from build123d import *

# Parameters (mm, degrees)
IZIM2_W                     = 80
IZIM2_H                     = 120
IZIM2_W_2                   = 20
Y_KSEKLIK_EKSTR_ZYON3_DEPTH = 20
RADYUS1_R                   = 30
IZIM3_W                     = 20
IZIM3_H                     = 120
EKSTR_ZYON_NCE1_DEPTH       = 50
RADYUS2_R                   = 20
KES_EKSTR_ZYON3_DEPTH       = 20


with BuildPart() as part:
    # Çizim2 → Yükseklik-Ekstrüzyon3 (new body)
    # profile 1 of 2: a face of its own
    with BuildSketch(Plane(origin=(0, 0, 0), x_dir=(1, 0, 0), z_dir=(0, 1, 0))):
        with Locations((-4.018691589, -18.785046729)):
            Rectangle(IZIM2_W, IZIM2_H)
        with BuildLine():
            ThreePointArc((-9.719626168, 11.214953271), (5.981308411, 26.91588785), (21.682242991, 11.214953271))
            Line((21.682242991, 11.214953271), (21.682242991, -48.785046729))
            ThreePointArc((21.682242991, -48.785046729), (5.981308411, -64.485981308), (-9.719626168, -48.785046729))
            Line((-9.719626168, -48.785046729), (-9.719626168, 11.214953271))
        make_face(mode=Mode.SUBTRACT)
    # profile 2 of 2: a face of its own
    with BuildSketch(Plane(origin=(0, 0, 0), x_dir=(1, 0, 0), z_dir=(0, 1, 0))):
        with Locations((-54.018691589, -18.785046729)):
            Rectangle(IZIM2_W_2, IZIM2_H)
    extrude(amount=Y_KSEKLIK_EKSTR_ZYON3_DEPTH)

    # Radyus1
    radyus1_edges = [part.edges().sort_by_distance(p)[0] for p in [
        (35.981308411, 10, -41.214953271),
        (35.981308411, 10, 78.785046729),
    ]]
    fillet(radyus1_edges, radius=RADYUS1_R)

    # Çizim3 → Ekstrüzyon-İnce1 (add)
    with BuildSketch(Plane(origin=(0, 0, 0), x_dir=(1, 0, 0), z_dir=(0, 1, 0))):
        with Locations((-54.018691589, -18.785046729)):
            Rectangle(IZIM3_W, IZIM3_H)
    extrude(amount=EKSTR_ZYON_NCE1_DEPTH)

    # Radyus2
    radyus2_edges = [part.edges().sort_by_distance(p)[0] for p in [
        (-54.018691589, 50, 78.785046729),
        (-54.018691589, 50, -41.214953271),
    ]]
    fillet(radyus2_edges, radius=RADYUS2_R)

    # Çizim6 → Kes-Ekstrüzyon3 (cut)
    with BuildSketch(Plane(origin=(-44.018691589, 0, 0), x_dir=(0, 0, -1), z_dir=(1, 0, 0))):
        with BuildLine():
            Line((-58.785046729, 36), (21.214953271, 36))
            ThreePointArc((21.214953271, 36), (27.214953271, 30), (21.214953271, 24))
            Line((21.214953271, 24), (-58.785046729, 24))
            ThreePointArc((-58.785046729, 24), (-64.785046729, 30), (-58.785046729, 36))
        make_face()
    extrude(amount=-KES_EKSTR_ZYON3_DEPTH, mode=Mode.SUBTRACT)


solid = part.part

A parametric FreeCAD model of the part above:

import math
import FreeCAD as App
import Part
import Sketcher
from FreeCAD import Vector


def edges_at(feature, points):
    """Names of the edges that pass closest to the given points."""
    edges = feature.Shape.Edges
    near = lambda p: min(range(len(edges)), key=lambda i: edges[i].distToShape(Part.Vertex(*p))[0])
    return sorted({f"Edge{near(p) + 1}" for p in points})


def add_polygon(sketch, points):
    """Adds a closed chain of lines whose ends are joined by coincident constraints."""
    first, n = sketch.GeometryCount, len(points)
    for a, b in zip(points, points[1:] + points[:1]):
        sketch.addGeometry(Part.LineSegment(App.Vector(*a, 0), App.Vector(*b, 0)), False)
    for i in range(n):
        sketch.addConstraint(Sketcher.Constraint("Coincident", first + i, 2, first + (i + 1) % n, 1))

doc = App.newDocument("Part")
body = doc.addObject("PartDesign::Body", "Body")

# Sketch on XZ plane
sketch1 = doc.addObject("Sketcher::SketchObject", "Sketch")
body.addObject(sketch1)
sketch1.AttachmentSupport = (doc.XZ_Plane, [""])
sketch1.MapMode = "FlatFace"
add_polygon(sketch1, [(36, 79), (36, -41), (-64, -41), (-64, 79)])  # lines 0-3
sketch1.addGeometry(Part.LineSegment(Vector(-10, 49, 0), Vector(-10, -11, 0)), False)  # 4
sketch1.addGeometry(Part.ArcOfCircle(Part.Circle(Vector(6, -11, 0), Vector(0, 0, 1), 16), math.radians(180), math.radians(360)), False)  # 5
sketch1.addGeometry(Part.LineSegment(Vector(22, -11, 0), Vector(22, 49, 0)), False)  # 6
sketch1.addGeometry(Part.ArcOfCircle(Part.Circle(Vector(6, 49, 0), Vector(0, 0, 1), 16), math.radians(0), math.radians(180)), False)  # 7
sketch1.addConstraint(Sketcher.Constraint("Tangent", 4, 2, 5, 1))
sketch1.addConstraint(Sketcher.Constraint("Tangent", 5, 2, 6, 1))
sketch1.addConstraint(Sketcher.Constraint("Tangent", 6, 2, 7, 1))
sketch1.addConstraint(Sketcher.Constraint("Tangent", 7, 2, 4, 1))
sketch1.addConstraint(Sketcher.Constraint("Vertical", 0))
sketch1.addConstraint(Sketcher.Constraint("Horizontal", 1))
sketch1.addConstraint(Sketcher.Constraint("Vertical", 2))
sketch1.addConstraint(Sketcher.Constraint("Horizontal", 3))
sketch1.addConstraint(Sketcher.Constraint("Vertical", 4))
sketch1.addConstraint(Sketcher.Constraint("Vertical", 6))
sketch1.addConstraint(Sketcher.Constraint("DistanceX", 1, 2, 1, 1, 100.0))
sketch1.addConstraint(Sketcher.Constraint("DistanceY", 0, 2, 0, 1, 120.0))
sketch1.addConstraint(Sketcher.Constraint("DistanceY", 4, 2, 4, 1, 60.0))
sketch1.addConstraint(Sketcher.Constraint("DistanceX", 5, 3, 0, 2, 30.0))
sketch1.addConstraint(Sketcher.Constraint("DistanceY", 0, 2, 5, 3, 30.0))
sketch1.addConstraint(Sketcher.Constraint("Radius", 5, 15.700935))
sketch1.addConstraint(Sketcher.Constraint("DistanceX", -1, 1, 5, 3, 5.981308))
sketch1.addConstraint(Sketcher.Constraint("DistanceY", 5, 3, -1, 1, 11.214953))
pad1 = doc.addObject("PartDesign::Pad", "Pad")
body.addObject(pad1)
pad1.Profile = sketch1
pad1.Length = 20
pad1.Reversed = True
doc.recompute()

fillet = doc.addObject("PartDesign::Fillet", "Fillet")
body.addObject(fillet)
fillet.Base = (pad1, edges_at(pad1, [(35.981, 10, -41.215), (35.981, 10, 78.785)]))
fillet.Radius = 30

# Sketch on XZ plane
sketch2 = doc.addObject("Sketcher::SketchObject", "Sketch001")
body.addObject(sketch2)
sketch2.AttachmentSupport = (doc.XZ_Plane, [""])
sketch2.MapMode = "FlatFace"
add_polygon(sketch2, [(-64, -41), (-64, 79), (-44, 79), (-44, -41)])  # lines 0-3
sketch2.addConstraint(Sketcher.Constraint("Vertical", 0))
sketch2.addConstraint(Sketcher.Constraint("Horizontal", 1))
sketch2.addConstraint(Sketcher.Constraint("Vertical", 2))
sketch2.addConstraint(Sketcher.Constraint("Horizontal", 3))
sketch2.addConstraint(Sketcher.Constraint("DistanceX", 1, 1, 1, 2, 20.0))
sketch2.addConstraint(Sketcher.Constraint("DistanceY", 0, 1, 0, 2, 120.0))
sketch2.addConstraint(Sketcher.Constraint("DistanceX", 0, 2, -1, 1, 64.018692))
sketch2.addConstraint(Sketcher.Constraint("DistanceY", -1, 1, 0, 2, 78.785047))
pad2 = doc.addObject("PartDesign::Pad", "Pad001")
body.addObject(pad2)
pad2.Profile = sketch2
pad2.Length = 50
pad2.Reversed = True
doc.recompute()

fillet2 = doc.addObject("PartDesign::Fillet", "Fillet001")
body.addObject(fillet2)
fillet2.Base = (pad2, edges_at(pad2, [(-54.019, 50, 78.785), (-54.019, 50, -41.215)]))
fillet2.Radius = 20

# Sketch on YZ plane
sketch3 = doc.addObject("Sketcher::SketchObject", "Sketch002")
body.addObject(sketch3)
sketch3.AttachmentSupport = (doc.YZ_Plane, [""])
sketch3.MapMode = "FlatFace"
sketch3.AttachmentOffset = App.Placement(Vector(0, 0, -44.018692), App.Rotation())
sketch3.addGeometry(Part.LineSegment(Vector(36, -21, 0), Vector(36, 59, 0)), False)
sketch3.addGeometry(Part.ArcOfCircle(Part.Circle(Vector(30, 59, 0), Vector(0, 0, 1), 6), math.radians(0), math.radians(180)), False)
sketch3.addGeometry(Part.LineSegment(Vector(24, 59, 0), Vector(24, -21, 0)), False)
sketch3.addGeometry(Part.ArcOfCircle(Part.Circle(Vector(30, -21, 0), Vector(0, 0, 1), 6), math.radians(180), math.radians(360)), False)
sketch3.addConstraint(Sketcher.Constraint("Tangent", 0, 2, 1, 1))
sketch3.addConstraint(Sketcher.Constraint("Tangent", 1, 2, 2, 1))
sketch3.addConstraint(Sketcher.Constraint("Tangent", 2, 2, 3, 1))
sketch3.addConstraint(Sketcher.Constraint("Tangent", 3, 2, 0, 1))
sketch3.addConstraint(Sketcher.Constraint("Vertical", 0))
sketch3.addConstraint(Sketcher.Constraint("Vertical", 2))
sketch3.addConstraint(Sketcher.Constraint("Radius", 1, 6.0))
sketch3.addConstraint(Sketcher.Constraint("DistanceY", 0, 1, 0, 2, 80.0))
sketch3.addConstraint(Sketcher.Constraint("DistanceX", -1, 1, 1, 3, 30.0))
sketch3.addConstraint(Sketcher.Constraint("DistanceY", -1, 1, 1, 3, 58.785047))
pocket1 = doc.addObject("PartDesign::Pocket", "Pocket")
body.addObject(pocket1)
pocket1.Profile = sketch3
pocket1.Length = 20

doc.recompute()
